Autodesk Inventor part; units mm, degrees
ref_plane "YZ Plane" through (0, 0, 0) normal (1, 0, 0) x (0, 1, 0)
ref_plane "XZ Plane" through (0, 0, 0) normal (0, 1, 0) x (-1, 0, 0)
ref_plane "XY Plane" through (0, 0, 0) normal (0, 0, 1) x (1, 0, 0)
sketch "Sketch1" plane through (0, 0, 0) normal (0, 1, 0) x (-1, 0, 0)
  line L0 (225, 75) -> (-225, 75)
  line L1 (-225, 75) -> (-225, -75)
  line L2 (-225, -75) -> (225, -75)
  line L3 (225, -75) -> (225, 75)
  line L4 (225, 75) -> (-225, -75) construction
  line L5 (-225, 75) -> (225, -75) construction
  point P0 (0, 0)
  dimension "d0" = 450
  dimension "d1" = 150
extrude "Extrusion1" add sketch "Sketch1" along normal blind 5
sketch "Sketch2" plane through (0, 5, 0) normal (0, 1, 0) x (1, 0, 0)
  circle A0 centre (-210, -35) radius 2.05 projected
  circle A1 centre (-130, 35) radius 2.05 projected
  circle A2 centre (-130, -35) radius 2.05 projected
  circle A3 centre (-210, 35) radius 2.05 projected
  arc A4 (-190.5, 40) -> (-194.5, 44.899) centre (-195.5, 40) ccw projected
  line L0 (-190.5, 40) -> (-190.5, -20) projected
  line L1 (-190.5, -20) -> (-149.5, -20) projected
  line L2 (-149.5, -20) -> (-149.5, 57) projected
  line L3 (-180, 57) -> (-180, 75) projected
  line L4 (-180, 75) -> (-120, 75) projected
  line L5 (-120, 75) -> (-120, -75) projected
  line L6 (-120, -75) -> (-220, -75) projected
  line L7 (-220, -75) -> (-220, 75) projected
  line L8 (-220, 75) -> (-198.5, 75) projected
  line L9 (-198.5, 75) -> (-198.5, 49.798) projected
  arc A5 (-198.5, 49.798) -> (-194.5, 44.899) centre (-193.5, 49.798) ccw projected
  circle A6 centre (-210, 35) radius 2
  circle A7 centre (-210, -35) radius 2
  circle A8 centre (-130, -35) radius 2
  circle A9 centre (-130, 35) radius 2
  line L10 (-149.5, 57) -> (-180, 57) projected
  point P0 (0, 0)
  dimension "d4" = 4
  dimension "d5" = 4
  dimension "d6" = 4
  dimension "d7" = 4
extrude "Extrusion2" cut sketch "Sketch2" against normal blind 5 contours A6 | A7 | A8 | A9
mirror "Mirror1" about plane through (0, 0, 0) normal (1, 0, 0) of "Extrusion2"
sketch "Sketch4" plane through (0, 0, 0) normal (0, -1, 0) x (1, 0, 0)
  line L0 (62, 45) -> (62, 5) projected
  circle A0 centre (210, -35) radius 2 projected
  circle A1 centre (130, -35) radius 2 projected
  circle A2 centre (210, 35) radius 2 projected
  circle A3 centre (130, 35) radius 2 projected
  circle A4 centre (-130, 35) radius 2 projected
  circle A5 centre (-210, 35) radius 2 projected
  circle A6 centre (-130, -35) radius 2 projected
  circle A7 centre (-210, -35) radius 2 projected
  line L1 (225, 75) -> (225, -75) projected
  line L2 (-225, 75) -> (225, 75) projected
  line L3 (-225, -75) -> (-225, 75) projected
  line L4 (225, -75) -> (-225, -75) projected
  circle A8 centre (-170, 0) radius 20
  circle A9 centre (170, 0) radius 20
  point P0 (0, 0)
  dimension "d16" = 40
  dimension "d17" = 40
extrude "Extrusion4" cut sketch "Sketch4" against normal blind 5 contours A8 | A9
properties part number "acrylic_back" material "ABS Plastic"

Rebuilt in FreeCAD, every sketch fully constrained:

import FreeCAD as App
import Part
import Sketcher

V = App.Vector


def add_polygon(sketch, points):
    """Adds a closed chain of lines whose ends are joined by coincident constraints."""
    first, n = sketch.GeometryCount, len(points)
    for a, b in zip(points, points[1:] + points[:1]):
        sketch.addGeometry(Part.LineSegment(App.Vector(*a, 0), App.Vector(*b, 0)), False)
    for i in range(n):
        sketch.addConstraint(Sketcher.Constraint("Coincident", first + i, 2, first + (i + 1) % n, 1))

doc = App.newDocument("Part")
body = doc.addObject("PartDesign::Body", "Body")

# Sketch on XZ plane
sketch1 = body.newObject("Sketcher::SketchObject", "Sketch")
sketch1.AttachmentSupport = (doc.getObject("XZ_Plane"), [""])
sketch1.MapMode = "FlatFace"
add_polygon(sketch1, [(-225, -75), (-225, 75), (225, 75), (225, -75)])  # lines 0-3
sketch1.addConstraint([
    Sketcher.Constraint("Vertical", 0),
    Sketcher.Constraint("Horizontal", 1),
    Sketcher.Constraint("Vertical", 2),
    Sketcher.Constraint("Horizontal", 3),
    Sketcher.Constraint("Symmetric", 0, 2, 2, 2, -1, 1),
    Sketcher.Constraint("DistanceX", 1, 1, 1, 2, 450.0),
    Sketcher.Constraint("DistanceY", 0, 1, 0, 2, 150.0),
])
pad1 = body.newObject("PartDesign::Pad", "Pad")
pad1.Profile = sketch1
pad1.Length = 5
pad1.Reversed = True

# Sketch on XZ plane
sketch2 = body.newObject("Sketcher::SketchObject", "Sketch001")
sketch2.AttachmentSupport = (doc.getObject("XZ_Plane"), [""])
sketch2.MapMode = "FlatFace"
sketch2.AttachmentOffset = App.Placement(V(0, 0, -5), App.Rotation())
sketch2.addGeometry([
    Part.Circle(V(-210, -35, 0), V(0, 0, 1), 2),
    Part.Circle(V(-210, 35, 0), V(0, 0, 1), 2),
    Part.Circle(V(-130, 35, 0), V(0, 0, 1), 2),
    Part.Circle(V(-130, -35, 0), V(0, 0, 1), 2),
], False)
sketch2.addConstraint([
    Sketcher.Constraint("Equal", 0, 1),
    Sketcher.Constraint("Equal", 1, 2),
    Sketcher.Constraint("Equal", 2, 3),
    Sketcher.Constraint("Symmetric", 0, 3, 1, 3, -1),
    Sketcher.Constraint("Symmetric", 2, 3, 3, 3, -1),
    Sketcher.Constraint("Horizontal", 1, 3, 2, 3),
    Sketcher.Constraint("Diameter", 0, 4.0),
    Sketcher.Constraint("DistanceX", 0, 3, -1, 1, 210.0),
    Sketcher.Constraint("DistanceY", 0, 3, -1, 1, 35.0),
    Sketcher.Constraint("DistanceX", 2, 3, -1, 1, 130.0),
])
pocket1 = body.newObject("PartDesign::Pocket", "Pocket")
pocket1.Profile = sketch2
pocket1.Length = 5
pocket1.Reversed = True
doc.recompute()

mirrored = body.newObject("PartDesign::Mirrored", "Mirrored")
mirrored.Originals = [pocket1]
mirrored.MirrorPlane = (doc.getObject("YZ_Plane"), [""])
body.Tip = mirrored

# Sketch on XZ plane
sketch3 = body.newObject("Sketcher::SketchObject", "Sketch002")
sketch3.AttachmentSupport = (doc.getObject("XZ_Plane"), [""])
sketch3.MapMode = "FlatFace"
sketch3.addGeometry([
    Part.Circle(V(-170, 0, 0), V(0, 0, 1), 20),
    Part.Circle(V(170, 0, 0), V(0, 0, 1), 20),
], False)
sketch3.addConstraint([
    Sketcher.Constraint("Equal", 0, 1),
    Sketcher.Constraint("Symmetric", 0, 3, 1, 3, -1, 1),
    Sketcher.Constraint("PointOnObject", 0, 3, -1),
    Sketcher.Constraint("Diameter", 0, 40.0),
    Sketcher.Constraint("DistanceX", 0, 3, -1, 1, 170.0),
])
pocket2 = body.newObject("PartDesign::Pocket", "Pocket001")
pocket2.Profile = sketch3
pocket2.Length = 5

doc.recompute()
